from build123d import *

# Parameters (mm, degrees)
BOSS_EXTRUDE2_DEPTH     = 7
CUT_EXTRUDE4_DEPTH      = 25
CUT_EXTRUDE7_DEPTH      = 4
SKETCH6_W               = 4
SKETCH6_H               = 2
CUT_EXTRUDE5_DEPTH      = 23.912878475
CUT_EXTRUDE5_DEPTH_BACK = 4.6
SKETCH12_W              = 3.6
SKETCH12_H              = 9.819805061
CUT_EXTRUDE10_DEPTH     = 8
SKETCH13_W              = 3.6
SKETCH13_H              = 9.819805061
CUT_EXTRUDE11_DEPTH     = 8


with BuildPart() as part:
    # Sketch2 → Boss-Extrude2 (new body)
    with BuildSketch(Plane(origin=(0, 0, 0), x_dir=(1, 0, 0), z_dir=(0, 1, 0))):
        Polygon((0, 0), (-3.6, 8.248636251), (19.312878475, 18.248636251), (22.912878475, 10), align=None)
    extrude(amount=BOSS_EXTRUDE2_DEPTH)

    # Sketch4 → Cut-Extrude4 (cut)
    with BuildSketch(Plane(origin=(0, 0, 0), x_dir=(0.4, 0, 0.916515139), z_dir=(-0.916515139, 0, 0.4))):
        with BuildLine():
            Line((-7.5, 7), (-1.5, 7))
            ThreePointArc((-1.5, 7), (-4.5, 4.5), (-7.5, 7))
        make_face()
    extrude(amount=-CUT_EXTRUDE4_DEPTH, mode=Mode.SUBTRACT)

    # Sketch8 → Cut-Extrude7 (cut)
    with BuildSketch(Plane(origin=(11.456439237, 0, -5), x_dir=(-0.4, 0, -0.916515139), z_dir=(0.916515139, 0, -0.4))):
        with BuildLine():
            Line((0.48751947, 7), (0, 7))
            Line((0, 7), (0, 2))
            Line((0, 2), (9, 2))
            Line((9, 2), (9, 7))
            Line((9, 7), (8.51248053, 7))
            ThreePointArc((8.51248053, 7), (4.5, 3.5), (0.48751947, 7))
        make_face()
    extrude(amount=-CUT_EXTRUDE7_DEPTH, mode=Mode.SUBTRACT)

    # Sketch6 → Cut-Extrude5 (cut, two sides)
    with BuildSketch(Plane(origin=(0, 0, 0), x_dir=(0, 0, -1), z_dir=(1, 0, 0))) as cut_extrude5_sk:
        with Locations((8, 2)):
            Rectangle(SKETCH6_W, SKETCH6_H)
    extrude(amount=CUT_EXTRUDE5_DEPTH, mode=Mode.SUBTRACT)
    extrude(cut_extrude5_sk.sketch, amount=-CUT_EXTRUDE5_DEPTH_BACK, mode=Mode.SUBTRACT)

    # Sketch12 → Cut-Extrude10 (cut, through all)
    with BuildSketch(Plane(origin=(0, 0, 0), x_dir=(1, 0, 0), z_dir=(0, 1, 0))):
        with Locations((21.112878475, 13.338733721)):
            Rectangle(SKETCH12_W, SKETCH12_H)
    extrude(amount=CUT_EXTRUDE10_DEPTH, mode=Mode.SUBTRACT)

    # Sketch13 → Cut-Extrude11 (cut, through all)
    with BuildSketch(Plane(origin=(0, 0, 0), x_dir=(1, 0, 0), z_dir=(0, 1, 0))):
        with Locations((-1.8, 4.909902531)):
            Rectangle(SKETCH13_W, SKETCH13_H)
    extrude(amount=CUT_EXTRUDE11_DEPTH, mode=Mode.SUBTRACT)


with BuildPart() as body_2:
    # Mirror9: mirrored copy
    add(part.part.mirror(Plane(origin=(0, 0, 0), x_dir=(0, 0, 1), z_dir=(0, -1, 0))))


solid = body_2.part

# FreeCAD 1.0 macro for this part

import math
import FreeCAD as App
import Part
import Sketcher
from FreeCAD import Vector

doc = App.newDocument("Part")
body = doc.addObject("PartDesign::Body", "Body")

# Sketch on XZ plane
sketch1 = doc.addObject("Sketcher::SketchObject", "Sketch")
body.addObject(sketch1)
sketch1.AttachmentSupport = (doc.XZ_Plane, [""])
sketch1.MapMode = "FlatFace"
sketch1.addGeometry([
    Part.LineSegment(Vector(-3.6, -8.248636, 0), Vector(0, 0, 0)),
    Part.LineSegment(Vector(0, 0, 0), Vector(22.912878, -10, 0)),
    Part.LineSegment(Vector(22.912878, -10, 0), Vector(19.312878, -18.248636, 0)),
    Part.LineSegment(Vector(19.312878, -18.248636, 0), Vector(-3.6, -8.248636, 0)),
], False)
sketch1.addConstraint([
    Sketcher.Constraint("Coincident", 0, 2, 1, 1),
    Sketcher.Constraint("Coincident", 1, 2, 2, 1),
    Sketcher.Constraint("Coincident", 2, 2, 3, 1),
    Sketcher.Constraint("Coincident", 3, 2, 0, 1),
    Sketcher.Constraint("Coincident", 0, 2, -1, 1),
    Sketcher.Constraint("Perpendicular", 0, 1),
    Sketcher.Constraint("Perpendicular", 1, 2),
    Sketcher.Constraint("Perpendicular", 2, 3),
    Sketcher.Constraint("Distance", 0, 9.0),
    Sketcher.Constraint("Distance", 1, 25.0),
    Sketcher.Constraint("DistanceY", 1, 2, -1, 1, 10.0),
])
pad1 = doc.addObject("PartDesign::Pad", "Pad")
body.addObject(pad1)
pad1.Profile = sketch1
pad1.Length = 7
pad1.Reversed = True

# Sketch on an angled plane
sketch2 = doc.addObject("Sketcher::SketchObject", "Sketch001")
body.addObject(sketch2)
sketch2.Placement = App.Placement(Vector(0, 0, 0), App.Rotation(Vector(0.4, 0, 0.916515139), Vector(0, 1, 0), Vector(-0.916515139, 0, 0.4), "ZXY"))
sketch2.addGeometry([
    Part.LineSegment(Vector(-1.5, 7, 0), Vector(-7.5, 7, 0)),
    Part.ArcOfCircle(Part.Circle(Vector(-4.5, 7.55, 0), Vector(0, 0, 1), 3.05), math.radians(-169.611142), math.radians(-10.388858)),
], False)
sketch2.addConstraint([
    Sketcher.Constraint("Coincident", 0, 1, 1, 2),
    Sketcher.Constraint("Coincident", 1, 1, 0, 2),
    Sketcher.Constraint("Horizontal", 0),
    Sketcher.Constraint("DistanceX", 0, 2, 0, 1, 6.0),
    Sketcher.Constraint("Radius", 1, 3.05),
    Sketcher.Constraint("DistanceY", -1, 1, 0, 1, 7.0),
    Sketcher.Constraint("DistanceX", 1, 3, -1, 1, 4.5),
])
pocket1 = doc.addObject("PartDesign::Pocket", "Pocket")
body.addObject(pocket1)
pocket1.Profile = sketch2
pocket1.Length = 25

# Sketch on an angled plane
sketch3 = doc.addObject("Sketcher::SketchObject", "Sketch002")
body.addObject(sketch3)
sketch3.Placement = App.Placement(Vector(11.456439, 0, -5), App.Rotation(Vector(-0.4, 0, -0.916515139), Vector(0, 1, 0), Vector(0.916515139, 0, -0.4), "ZXY"))
sketch3.addGeometry([
    Part.LineSegment(Vector(0.487519, 7, 0), Vector(0, 7, 0)),  # 0
    Part.LineSegment(Vector(0, 7, 0), Vector(0, 2, 0)),  # 1
    Part.LineSegment(Vector(0, 2, 0), Vector(9, 2, 0)),  # 2
    Part.LineSegment(Vector(9, 2, 0), Vector(9, 7, 0)),  # 3
    Part.LineSegment(Vector(9, 7, 0), Vector(8.512481, 7, 0)),  # 4
    Part.ArcOfCircle(Part.Circle(Vector(4.5, 7.55, 0), Vector(0, 0, 1), 4.05), math.radians(-172.194975), math.radians(-7.805025)),  # 5
], False)
sketch3.addConstraint([
    Sketcher.Constraint("Coincident", 0, 2, 1, 1),
    Sketcher.Constraint("Coincident", 1, 2, 2, 1),
    Sketcher.Constraint("Coincident", 2, 2, 3, 1),
    Sketcher.Constraint("Coincident", 3, 2, 4, 1),
    Sketcher.Constraint("Coincident", 4, 2, 5, 2),
    Sketcher.Constraint("Coincident", 5, 1, 0, 1),
    Sketcher.Constraint("Horizontal", 0),
    Sketcher.Constraint("Vertical", 1),
    Sketcher.Constraint("Horizontal", 2),
    Sketcher.Constraint("Vertical", 3),
    Sketcher.Constraint("Horizontal", 4),
    Sketcher.Constraint("PointOnObject", 0, 2, -2),
    Sketcher.Constraint("Horizontal", 0, 2, 3, 2),
    Sketcher.Constraint("Equal", 0, 4),
    Sketcher.Constraint("DistanceX", 2, 1, 2, 2, 9.0),
    Sketcher.Constraint("DistanceY", 1, 2, 1, 1, 5.0),
    Sketcher.Constraint("Radius", 5, 4.05),
    Sketcher.Constraint("DistanceY", -1, 1, 0, 2, 7.0),
    Sketcher.Constraint("DistanceY", -1, 1, 5, 3, 7.55),
])
pocket2 = doc.addObject("PartDesign::Pocket", "Pocket001")
body.addObject(pocket2)
pocket2.Profile = sketch3
pocket2.Length = 4

# Sketch on YZ plane
sketch4 = doc.addObject("Sketcher::SketchObject", "Sketch003")
body.addObject(sketch4)
sketch4.AttachmentSupport = (doc.YZ_Plane, [""])
sketch4.MapMode = "FlatFace"
sketch4.addGeometry([
    Part.LineSegment(Vector(3, -6, 0), Vector(1, -6, 0)),
    Part.LineSegment(Vector(1, -6, 0), Vector(1, -10, 0)),
    Part.LineSegment(Vector(1, -10, 0), Vector(3, -10, 0)),
    Part.LineSegment(Vector(3, -10, 0), Vector(3, -6, 0)),
], False)
sketch4.addConstraint([
    Sketcher.Constraint("Coincident", 0, 2, 1, 1),
    Sketcher.Constraint("Coincident", 1, 2, 2, 1),
    Sketcher.Constraint("Coincident", 2, 2, 3, 1),
    Sketcher.Constraint("Coincident", 3, 2, 0, 1),
    Sketcher.Constraint("Horizontal", 0),
    Sketcher.Constraint("Vertical", 1),
    Sketcher.Constraint("Horizontal", 2),
    Sketcher.Constraint("Vertical", 3),
    Sketcher.Constraint("DistanceX", 0, 2, 0, 1, 2.0),
    Sketcher.Constraint("DistanceY", 1, 2, 1, 1, 4.0),
    Sketcher.Constraint("DistanceX", -1, 1, 0, 2, 1.0),
    Sketcher.Constraint("DistanceY", 0, 2, -1, 1, 6.0),
])
pocket3 = doc.addObject("PartDesign::Pocket", "Pocket002")
body.addObject(pocket3)
pocket3.Profile = sketch4
pocket3.Type = "ThroughAll"
pocket3.Midplane = True

# Sketch on XZ plane
sketch5 = doc.addObject("Sketcher::SketchObject", "Sketch004")
body.addObject(sketch5)
sketch5.AttachmentSupport = (doc.XZ_Plane, [""])
sketch5.MapMode = "FlatFace"
sketch5.addGeometry([
    Part.LineSegment(Vector(19.312878, -18.248636, 0), Vector(19.312878, -8.428831, 0)),
    Part.LineSegment(Vector(19.312878, -8.428831, 0), Vector(22.912878, -8.428831, 0)),
    Part.LineSegment(Vector(22.912878, -8.428831, 0), Vector(22.912878, -18.248636, 0)),
    Part.LineSegment(Vector(22.912878, -18.248636, 0), Vector(19.312878, -18.248636, 0)),
], False)
sketch5.addConstraint([
    Sketcher.Constraint("Coincident", 0, 2, 1, 1),
    Sketcher.Constraint("Coincident", 1, 2, 2, 1),
    Sketcher.Constraint("Coincident", 2, 2, 3, 1),
    Sketcher.Constraint("Coincident", 3, 2, 0, 1),
    Sketcher.Constraint("Vertical", 0),
    Sketcher.Constraint("Horizontal", 1),
    Sketcher.Constraint("Vertical", 2),
    Sketcher.Constraint("Horizontal", 3),
    Sketcher.Constraint("DistanceX", 1, 1, 1, 2, 3.6),
    Sketcher.Constraint("DistanceY", 0, 1, 0, 2, 9.819805),
    Sketcher.Constraint("DistanceX", -1, 1, 0, 2, 19.312878),
    Sketcher.Constraint("DistanceY", 0, 2, -1, 1, 8.428831),
])
pocket4 = doc.addObject("PartDesign::Pocket", "Pocket003")
body.addObject(pocket4)
pocket4.Profile = sketch5
pocket4.Type = "ThroughAll"

# Sketch on XZ plane
sketch6 = doc.addObject("Sketcher::SketchObject", "Sketch005")
body.addObject(sketch6)
sketch6.AttachmentSupport = (doc.XZ_Plane, [""])
sketch6.MapMode = "FlatFace"
sketch6.addGeometry([
    Part.LineSegment(Vector(-3.6, -9.819805, 0), Vector(-3.6, 0, 0)),
    Part.LineSegment(Vector(-3.6, 0, 0), Vector(0, 0, 0)),
    Part.LineSegment(Vector(0, 0, 0), Vector(0, -9.819805, 0)),
    Part.LineSegment(Vector(0, -9.819805, 0), Vector(-3.6, -9.819805, 0)),
], False)
sketch6.addConstraint([
    Sketcher.Constraint("Coincident", 0, 2, 1, 1),
    Sketcher.Constraint("Coincident", 1, 2, 2, 1),
    Sketcher.Constraint("Coincident", 2, 2, 3, 1),
    Sketcher.Constraint("Coincident", 3, 2, 0, 1),
    Sketcher.Constraint("Vertical", 0),
    Sketcher.Constraint("Horizontal", 1),
    Sketcher.Constraint("Vertical", 2),
    Sketcher.Constraint("Horizontal", 3),
    Sketcher.Constraint("Coincident", 1, 2, -1, 1),
    Sketcher.Constraint("DistanceX", 1, 1, 1, 2, 3.6),
    Sketcher.Constraint("DistanceY", 0, 1, 0, 2, 9.819805),
])
pocket5 = doc.addObject("PartDesign::Pocket", "Pocket004")
body.addObject(pocket5)
pocket5.Profile = sketch6
pocket5.Type = "ThroughAll"
body2 = doc.addObject("PartDesign::Body", "Body001")
doc.recompute()

mirroring = doc.addObject("Part::Mirroring", "Mirroring")
mirroring.Source = body
mirroring.Base = Vector(0, 0, 0)
mirroring.Normal = Vector(0, -1, 0)
body2.BaseFeature = mirroring
doc.recompute()
body.Visibility = False
mirroring.Visibility = False

doc.recompute()
